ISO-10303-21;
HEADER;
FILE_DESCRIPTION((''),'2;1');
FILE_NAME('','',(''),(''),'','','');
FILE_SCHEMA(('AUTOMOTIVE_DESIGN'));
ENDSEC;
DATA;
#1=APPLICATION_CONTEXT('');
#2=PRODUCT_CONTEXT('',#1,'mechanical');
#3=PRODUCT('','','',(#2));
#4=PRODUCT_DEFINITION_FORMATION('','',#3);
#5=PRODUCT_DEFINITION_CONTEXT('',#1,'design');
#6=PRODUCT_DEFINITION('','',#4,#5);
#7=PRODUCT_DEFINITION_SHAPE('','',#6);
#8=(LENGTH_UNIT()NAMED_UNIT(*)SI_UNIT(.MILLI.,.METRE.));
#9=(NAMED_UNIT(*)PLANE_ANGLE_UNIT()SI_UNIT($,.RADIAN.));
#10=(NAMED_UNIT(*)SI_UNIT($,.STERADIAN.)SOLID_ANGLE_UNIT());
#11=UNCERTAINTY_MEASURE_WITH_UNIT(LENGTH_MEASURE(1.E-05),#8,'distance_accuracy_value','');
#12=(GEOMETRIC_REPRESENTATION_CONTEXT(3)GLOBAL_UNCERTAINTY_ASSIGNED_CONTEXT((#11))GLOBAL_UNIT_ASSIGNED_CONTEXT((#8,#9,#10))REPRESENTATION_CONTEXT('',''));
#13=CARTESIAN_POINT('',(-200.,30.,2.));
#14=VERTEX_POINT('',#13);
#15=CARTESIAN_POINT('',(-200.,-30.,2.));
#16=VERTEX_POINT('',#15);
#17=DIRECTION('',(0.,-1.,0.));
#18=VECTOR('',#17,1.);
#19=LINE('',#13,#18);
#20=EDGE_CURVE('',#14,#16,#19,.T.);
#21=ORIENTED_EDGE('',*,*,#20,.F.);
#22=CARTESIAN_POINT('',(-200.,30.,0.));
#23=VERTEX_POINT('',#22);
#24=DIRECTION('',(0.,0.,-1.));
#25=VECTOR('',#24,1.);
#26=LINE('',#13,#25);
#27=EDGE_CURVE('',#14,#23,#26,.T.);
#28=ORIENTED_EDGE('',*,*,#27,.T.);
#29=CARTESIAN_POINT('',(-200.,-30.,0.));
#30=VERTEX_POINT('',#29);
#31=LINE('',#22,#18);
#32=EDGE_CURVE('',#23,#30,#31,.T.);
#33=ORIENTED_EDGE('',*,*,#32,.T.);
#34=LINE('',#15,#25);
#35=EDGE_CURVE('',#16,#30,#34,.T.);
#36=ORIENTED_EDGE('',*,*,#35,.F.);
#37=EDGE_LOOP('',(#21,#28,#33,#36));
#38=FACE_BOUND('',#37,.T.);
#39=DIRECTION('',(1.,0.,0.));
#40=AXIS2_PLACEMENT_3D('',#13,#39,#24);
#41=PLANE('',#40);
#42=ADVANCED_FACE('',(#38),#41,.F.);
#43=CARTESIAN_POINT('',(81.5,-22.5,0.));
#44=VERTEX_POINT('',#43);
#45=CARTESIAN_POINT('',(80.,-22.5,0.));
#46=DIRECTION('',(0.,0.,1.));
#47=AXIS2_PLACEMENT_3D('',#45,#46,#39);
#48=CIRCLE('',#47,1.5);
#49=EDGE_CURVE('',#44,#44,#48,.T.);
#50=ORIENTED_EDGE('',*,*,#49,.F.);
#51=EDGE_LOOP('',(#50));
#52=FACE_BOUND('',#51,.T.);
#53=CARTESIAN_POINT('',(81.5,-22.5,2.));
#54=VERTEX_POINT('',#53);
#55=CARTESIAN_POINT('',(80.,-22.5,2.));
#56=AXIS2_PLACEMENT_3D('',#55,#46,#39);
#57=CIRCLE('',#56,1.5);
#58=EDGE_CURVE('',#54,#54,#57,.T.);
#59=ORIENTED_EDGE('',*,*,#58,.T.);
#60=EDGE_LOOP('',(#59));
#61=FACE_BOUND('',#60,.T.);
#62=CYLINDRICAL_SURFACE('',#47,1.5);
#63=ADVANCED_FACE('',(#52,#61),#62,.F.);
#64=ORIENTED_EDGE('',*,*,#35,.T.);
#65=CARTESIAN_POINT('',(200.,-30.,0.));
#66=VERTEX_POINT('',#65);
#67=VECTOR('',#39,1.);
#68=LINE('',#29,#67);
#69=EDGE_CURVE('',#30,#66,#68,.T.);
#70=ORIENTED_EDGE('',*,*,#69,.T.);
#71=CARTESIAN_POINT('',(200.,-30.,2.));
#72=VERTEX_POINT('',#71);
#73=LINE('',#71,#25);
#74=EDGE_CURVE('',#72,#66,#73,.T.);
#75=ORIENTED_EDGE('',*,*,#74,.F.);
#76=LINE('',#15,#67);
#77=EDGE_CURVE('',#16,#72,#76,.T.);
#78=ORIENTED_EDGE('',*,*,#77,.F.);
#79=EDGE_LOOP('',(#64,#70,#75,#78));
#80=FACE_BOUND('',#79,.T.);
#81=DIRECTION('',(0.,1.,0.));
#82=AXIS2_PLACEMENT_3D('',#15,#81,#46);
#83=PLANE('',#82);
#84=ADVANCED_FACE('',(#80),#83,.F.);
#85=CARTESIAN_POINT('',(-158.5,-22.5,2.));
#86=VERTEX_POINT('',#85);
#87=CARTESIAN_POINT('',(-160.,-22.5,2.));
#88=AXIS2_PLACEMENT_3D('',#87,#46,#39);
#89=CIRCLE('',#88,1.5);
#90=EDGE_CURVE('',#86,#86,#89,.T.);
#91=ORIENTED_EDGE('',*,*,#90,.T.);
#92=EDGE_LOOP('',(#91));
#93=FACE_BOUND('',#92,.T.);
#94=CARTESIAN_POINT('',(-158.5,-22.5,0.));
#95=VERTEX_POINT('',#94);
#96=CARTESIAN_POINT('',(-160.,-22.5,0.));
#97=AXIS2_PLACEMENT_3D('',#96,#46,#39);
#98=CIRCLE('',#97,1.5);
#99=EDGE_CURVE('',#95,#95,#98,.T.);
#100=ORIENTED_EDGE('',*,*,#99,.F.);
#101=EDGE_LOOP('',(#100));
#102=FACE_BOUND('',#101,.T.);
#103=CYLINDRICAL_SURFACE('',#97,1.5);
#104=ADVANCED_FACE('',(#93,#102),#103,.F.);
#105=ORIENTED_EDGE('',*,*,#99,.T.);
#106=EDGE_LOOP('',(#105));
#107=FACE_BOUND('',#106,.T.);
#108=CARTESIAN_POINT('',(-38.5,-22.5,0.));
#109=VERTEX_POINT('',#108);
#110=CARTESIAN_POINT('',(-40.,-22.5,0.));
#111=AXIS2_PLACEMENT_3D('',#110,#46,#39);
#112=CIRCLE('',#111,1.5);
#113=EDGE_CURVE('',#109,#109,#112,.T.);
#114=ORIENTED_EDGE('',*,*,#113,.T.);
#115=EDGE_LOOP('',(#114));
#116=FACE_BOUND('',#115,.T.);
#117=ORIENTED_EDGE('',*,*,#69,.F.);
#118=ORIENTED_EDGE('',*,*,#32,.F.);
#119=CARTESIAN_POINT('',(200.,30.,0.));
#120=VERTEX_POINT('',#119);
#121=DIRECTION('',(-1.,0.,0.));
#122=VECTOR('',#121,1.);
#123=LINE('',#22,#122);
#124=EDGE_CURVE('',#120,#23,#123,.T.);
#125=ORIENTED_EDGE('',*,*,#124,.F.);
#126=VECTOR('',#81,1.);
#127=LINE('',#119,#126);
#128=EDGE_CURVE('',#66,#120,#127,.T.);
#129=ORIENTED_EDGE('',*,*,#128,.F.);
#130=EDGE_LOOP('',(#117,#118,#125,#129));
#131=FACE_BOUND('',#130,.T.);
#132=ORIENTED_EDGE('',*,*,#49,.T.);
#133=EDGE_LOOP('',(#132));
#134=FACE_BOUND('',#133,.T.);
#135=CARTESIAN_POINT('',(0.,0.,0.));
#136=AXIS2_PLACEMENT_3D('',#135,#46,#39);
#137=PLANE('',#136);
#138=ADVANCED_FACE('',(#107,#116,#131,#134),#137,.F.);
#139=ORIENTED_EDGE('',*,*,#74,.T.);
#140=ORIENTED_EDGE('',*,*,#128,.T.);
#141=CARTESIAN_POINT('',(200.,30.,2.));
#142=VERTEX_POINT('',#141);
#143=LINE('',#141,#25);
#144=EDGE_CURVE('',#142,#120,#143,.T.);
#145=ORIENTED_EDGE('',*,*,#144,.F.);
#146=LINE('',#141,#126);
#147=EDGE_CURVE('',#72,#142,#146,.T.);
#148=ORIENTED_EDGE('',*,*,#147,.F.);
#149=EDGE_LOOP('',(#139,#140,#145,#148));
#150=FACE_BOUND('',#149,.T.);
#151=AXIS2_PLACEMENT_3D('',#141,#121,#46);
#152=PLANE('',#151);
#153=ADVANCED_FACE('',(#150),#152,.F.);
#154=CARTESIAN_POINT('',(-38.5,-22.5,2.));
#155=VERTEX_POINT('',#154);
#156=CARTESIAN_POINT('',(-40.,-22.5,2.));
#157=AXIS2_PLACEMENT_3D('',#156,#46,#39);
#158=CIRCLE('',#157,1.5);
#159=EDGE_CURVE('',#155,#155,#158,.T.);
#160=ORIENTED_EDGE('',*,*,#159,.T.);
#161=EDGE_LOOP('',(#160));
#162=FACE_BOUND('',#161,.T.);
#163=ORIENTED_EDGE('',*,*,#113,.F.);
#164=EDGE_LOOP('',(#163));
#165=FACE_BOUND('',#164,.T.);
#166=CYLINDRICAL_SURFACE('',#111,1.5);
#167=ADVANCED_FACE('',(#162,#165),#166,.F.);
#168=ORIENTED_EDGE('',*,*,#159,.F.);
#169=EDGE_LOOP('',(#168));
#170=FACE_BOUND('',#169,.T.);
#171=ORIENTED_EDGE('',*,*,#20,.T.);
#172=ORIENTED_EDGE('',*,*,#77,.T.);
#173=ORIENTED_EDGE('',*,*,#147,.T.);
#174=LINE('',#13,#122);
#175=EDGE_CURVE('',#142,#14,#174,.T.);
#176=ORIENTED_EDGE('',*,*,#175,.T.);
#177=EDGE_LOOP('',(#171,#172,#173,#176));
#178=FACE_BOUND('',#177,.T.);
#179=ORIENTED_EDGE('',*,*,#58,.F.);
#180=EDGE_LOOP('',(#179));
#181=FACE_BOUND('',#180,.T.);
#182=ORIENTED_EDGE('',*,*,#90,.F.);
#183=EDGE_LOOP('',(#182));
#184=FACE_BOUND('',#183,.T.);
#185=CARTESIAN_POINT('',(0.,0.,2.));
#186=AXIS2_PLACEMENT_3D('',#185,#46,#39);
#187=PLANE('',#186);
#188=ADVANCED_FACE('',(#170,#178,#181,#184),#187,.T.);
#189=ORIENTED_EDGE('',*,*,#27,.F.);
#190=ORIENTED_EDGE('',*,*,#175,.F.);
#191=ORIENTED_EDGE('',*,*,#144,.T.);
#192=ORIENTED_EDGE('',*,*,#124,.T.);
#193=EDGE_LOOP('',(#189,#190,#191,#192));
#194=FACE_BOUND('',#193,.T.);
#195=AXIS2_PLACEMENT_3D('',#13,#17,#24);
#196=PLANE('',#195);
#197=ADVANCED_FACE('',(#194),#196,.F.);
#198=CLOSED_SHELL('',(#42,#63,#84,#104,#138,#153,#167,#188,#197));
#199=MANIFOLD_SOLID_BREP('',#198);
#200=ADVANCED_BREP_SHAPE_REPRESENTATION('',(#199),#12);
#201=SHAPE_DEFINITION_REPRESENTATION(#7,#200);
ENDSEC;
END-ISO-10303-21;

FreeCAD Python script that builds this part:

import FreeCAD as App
import Part
import Sketcher
Q = App.Units.Quantity


def add_polygon(sketch, points):
    """Adds a closed chain of lines whose ends are joined by coincident constraints."""
    first, n = sketch.GeometryCount, len(points)
    for a, b in zip(points, points[1:] + points[:1]):
        sketch.addGeometry(Part.LineSegment(App.Vector(*a, 0), App.Vector(*b, 0)), False)
    for i in range(n):
        sketch.addConstraint(Sketcher.Constraint("Coincident", first + i, 2, first + (i + 1) % n, 1))

doc = App.newDocument("Part")
params = doc.addObject("Spreadsheet::Sheet", "Params")
for row, (alias, value) in enumerate([
    ("sketch1_width", "400 mm"),
    ("sketch1_height", "60 mm"),
    ("pad1_length", "2 mm"),
    ("sketch2_diameter", "3 mm"),
], start=1):
    params.set(f"A{row}", alias)
    params.set(f"B{row}", "=" + value)
    params.setAlias(f"B{row}", alias)

body = doc.addObject("PartDesign::Body", "Body")

sketch1 = body.newObject("Sketcher::SketchObject", "Sketch")
sketch1.AttachmentSupport = (doc.getObject("XY_Plane"), [""])
sketch1.MapMode = "FlatFace"
add_polygon(sketch1, [(-200, 30), (-200, -30), (200, -30), (200, 30)])
sketch1.addConstraint([
    Sketcher.Constraint("Vertical", 0),
    Sketcher.Constraint("Horizontal", 1),
    Sketcher.Constraint("Vertical", 2),
    Sketcher.Constraint("Horizontal", 3),
    Sketcher.Constraint("Symmetric", 0, 2, 2, 2, -1, 1),
    Sketcher.Constraint("DistanceX", 1, 1, 1, 2, Q("400 mm")),
    Sketcher.Constraint("DistanceY", 0, 2, 0, 1, Q("60 mm")),
])
sketch1.setExpression("Constraints[9]", "Params.sketch1_width")
sketch1.setExpression("Constraints[10]", "Params.sketch1_height")
pad1 = body.newObject("PartDesign::Pad", "Pad")
pad1.Profile = sketch1
pad1.setExpression("Length", "Params.pad1_length")

sketch2 = body.newObject("Sketcher::SketchObject", "Sketch001")
sketch2.AttachmentSupport = (doc.getObject("XY_Plane"), [""])
sketch2.MapMode = "FlatFace"
sketch2.AttachmentOffset = App.Placement(App.Vector(0, 0, 2), App.Rotation())
sketch2.addGeometry([
    Part.Circle(App.Vector(-160, -22.5, 0), App.Vector(0, 0, 1), 1.5),
    Part.Circle(App.Vector(-40, -22.5, 0), App.Vector(0, 0, 1), 1.5),
    Part.Circle(App.Vector(80, -22.5, 0), App.Vector(0, 0, 1), 1.5),
], False)
sketch2.addConstraint([
    Sketcher.Constraint("Equal", 0, 1),
    Sketcher.Constraint("Equal", 1, 2),
    Sketcher.Constraint("Horizontal", 0, 3, 1, 3),
    Sketcher.Constraint("Horizontal", 1, 3, 2, 3),
    Sketcher.Constraint("Diameter", 0, Q("3 mm")),
    Sketcher.Constraint("DistanceX", 0, 3, -1, 1, Q("160 mm")),
    Sketcher.Constraint("DistanceX", 1, 3, -1, 1, Q("40 mm")),
    Sketcher.Constraint("DistanceX", -1, 1, 2, 3, Q("80 mm")),
    Sketcher.Constraint("DistanceY", 0, 3, -1, 1, Q("22.5 mm")),
])
sketch2.setExpression("Constraints[4]", "Params.sketch2_diameter")
pocket1 = body.newObject("PartDesign::Pocket", "Pocket")
pocket1.Profile = sketch2
pocket1.Type = "ThroughAll"

doc.recompute()
